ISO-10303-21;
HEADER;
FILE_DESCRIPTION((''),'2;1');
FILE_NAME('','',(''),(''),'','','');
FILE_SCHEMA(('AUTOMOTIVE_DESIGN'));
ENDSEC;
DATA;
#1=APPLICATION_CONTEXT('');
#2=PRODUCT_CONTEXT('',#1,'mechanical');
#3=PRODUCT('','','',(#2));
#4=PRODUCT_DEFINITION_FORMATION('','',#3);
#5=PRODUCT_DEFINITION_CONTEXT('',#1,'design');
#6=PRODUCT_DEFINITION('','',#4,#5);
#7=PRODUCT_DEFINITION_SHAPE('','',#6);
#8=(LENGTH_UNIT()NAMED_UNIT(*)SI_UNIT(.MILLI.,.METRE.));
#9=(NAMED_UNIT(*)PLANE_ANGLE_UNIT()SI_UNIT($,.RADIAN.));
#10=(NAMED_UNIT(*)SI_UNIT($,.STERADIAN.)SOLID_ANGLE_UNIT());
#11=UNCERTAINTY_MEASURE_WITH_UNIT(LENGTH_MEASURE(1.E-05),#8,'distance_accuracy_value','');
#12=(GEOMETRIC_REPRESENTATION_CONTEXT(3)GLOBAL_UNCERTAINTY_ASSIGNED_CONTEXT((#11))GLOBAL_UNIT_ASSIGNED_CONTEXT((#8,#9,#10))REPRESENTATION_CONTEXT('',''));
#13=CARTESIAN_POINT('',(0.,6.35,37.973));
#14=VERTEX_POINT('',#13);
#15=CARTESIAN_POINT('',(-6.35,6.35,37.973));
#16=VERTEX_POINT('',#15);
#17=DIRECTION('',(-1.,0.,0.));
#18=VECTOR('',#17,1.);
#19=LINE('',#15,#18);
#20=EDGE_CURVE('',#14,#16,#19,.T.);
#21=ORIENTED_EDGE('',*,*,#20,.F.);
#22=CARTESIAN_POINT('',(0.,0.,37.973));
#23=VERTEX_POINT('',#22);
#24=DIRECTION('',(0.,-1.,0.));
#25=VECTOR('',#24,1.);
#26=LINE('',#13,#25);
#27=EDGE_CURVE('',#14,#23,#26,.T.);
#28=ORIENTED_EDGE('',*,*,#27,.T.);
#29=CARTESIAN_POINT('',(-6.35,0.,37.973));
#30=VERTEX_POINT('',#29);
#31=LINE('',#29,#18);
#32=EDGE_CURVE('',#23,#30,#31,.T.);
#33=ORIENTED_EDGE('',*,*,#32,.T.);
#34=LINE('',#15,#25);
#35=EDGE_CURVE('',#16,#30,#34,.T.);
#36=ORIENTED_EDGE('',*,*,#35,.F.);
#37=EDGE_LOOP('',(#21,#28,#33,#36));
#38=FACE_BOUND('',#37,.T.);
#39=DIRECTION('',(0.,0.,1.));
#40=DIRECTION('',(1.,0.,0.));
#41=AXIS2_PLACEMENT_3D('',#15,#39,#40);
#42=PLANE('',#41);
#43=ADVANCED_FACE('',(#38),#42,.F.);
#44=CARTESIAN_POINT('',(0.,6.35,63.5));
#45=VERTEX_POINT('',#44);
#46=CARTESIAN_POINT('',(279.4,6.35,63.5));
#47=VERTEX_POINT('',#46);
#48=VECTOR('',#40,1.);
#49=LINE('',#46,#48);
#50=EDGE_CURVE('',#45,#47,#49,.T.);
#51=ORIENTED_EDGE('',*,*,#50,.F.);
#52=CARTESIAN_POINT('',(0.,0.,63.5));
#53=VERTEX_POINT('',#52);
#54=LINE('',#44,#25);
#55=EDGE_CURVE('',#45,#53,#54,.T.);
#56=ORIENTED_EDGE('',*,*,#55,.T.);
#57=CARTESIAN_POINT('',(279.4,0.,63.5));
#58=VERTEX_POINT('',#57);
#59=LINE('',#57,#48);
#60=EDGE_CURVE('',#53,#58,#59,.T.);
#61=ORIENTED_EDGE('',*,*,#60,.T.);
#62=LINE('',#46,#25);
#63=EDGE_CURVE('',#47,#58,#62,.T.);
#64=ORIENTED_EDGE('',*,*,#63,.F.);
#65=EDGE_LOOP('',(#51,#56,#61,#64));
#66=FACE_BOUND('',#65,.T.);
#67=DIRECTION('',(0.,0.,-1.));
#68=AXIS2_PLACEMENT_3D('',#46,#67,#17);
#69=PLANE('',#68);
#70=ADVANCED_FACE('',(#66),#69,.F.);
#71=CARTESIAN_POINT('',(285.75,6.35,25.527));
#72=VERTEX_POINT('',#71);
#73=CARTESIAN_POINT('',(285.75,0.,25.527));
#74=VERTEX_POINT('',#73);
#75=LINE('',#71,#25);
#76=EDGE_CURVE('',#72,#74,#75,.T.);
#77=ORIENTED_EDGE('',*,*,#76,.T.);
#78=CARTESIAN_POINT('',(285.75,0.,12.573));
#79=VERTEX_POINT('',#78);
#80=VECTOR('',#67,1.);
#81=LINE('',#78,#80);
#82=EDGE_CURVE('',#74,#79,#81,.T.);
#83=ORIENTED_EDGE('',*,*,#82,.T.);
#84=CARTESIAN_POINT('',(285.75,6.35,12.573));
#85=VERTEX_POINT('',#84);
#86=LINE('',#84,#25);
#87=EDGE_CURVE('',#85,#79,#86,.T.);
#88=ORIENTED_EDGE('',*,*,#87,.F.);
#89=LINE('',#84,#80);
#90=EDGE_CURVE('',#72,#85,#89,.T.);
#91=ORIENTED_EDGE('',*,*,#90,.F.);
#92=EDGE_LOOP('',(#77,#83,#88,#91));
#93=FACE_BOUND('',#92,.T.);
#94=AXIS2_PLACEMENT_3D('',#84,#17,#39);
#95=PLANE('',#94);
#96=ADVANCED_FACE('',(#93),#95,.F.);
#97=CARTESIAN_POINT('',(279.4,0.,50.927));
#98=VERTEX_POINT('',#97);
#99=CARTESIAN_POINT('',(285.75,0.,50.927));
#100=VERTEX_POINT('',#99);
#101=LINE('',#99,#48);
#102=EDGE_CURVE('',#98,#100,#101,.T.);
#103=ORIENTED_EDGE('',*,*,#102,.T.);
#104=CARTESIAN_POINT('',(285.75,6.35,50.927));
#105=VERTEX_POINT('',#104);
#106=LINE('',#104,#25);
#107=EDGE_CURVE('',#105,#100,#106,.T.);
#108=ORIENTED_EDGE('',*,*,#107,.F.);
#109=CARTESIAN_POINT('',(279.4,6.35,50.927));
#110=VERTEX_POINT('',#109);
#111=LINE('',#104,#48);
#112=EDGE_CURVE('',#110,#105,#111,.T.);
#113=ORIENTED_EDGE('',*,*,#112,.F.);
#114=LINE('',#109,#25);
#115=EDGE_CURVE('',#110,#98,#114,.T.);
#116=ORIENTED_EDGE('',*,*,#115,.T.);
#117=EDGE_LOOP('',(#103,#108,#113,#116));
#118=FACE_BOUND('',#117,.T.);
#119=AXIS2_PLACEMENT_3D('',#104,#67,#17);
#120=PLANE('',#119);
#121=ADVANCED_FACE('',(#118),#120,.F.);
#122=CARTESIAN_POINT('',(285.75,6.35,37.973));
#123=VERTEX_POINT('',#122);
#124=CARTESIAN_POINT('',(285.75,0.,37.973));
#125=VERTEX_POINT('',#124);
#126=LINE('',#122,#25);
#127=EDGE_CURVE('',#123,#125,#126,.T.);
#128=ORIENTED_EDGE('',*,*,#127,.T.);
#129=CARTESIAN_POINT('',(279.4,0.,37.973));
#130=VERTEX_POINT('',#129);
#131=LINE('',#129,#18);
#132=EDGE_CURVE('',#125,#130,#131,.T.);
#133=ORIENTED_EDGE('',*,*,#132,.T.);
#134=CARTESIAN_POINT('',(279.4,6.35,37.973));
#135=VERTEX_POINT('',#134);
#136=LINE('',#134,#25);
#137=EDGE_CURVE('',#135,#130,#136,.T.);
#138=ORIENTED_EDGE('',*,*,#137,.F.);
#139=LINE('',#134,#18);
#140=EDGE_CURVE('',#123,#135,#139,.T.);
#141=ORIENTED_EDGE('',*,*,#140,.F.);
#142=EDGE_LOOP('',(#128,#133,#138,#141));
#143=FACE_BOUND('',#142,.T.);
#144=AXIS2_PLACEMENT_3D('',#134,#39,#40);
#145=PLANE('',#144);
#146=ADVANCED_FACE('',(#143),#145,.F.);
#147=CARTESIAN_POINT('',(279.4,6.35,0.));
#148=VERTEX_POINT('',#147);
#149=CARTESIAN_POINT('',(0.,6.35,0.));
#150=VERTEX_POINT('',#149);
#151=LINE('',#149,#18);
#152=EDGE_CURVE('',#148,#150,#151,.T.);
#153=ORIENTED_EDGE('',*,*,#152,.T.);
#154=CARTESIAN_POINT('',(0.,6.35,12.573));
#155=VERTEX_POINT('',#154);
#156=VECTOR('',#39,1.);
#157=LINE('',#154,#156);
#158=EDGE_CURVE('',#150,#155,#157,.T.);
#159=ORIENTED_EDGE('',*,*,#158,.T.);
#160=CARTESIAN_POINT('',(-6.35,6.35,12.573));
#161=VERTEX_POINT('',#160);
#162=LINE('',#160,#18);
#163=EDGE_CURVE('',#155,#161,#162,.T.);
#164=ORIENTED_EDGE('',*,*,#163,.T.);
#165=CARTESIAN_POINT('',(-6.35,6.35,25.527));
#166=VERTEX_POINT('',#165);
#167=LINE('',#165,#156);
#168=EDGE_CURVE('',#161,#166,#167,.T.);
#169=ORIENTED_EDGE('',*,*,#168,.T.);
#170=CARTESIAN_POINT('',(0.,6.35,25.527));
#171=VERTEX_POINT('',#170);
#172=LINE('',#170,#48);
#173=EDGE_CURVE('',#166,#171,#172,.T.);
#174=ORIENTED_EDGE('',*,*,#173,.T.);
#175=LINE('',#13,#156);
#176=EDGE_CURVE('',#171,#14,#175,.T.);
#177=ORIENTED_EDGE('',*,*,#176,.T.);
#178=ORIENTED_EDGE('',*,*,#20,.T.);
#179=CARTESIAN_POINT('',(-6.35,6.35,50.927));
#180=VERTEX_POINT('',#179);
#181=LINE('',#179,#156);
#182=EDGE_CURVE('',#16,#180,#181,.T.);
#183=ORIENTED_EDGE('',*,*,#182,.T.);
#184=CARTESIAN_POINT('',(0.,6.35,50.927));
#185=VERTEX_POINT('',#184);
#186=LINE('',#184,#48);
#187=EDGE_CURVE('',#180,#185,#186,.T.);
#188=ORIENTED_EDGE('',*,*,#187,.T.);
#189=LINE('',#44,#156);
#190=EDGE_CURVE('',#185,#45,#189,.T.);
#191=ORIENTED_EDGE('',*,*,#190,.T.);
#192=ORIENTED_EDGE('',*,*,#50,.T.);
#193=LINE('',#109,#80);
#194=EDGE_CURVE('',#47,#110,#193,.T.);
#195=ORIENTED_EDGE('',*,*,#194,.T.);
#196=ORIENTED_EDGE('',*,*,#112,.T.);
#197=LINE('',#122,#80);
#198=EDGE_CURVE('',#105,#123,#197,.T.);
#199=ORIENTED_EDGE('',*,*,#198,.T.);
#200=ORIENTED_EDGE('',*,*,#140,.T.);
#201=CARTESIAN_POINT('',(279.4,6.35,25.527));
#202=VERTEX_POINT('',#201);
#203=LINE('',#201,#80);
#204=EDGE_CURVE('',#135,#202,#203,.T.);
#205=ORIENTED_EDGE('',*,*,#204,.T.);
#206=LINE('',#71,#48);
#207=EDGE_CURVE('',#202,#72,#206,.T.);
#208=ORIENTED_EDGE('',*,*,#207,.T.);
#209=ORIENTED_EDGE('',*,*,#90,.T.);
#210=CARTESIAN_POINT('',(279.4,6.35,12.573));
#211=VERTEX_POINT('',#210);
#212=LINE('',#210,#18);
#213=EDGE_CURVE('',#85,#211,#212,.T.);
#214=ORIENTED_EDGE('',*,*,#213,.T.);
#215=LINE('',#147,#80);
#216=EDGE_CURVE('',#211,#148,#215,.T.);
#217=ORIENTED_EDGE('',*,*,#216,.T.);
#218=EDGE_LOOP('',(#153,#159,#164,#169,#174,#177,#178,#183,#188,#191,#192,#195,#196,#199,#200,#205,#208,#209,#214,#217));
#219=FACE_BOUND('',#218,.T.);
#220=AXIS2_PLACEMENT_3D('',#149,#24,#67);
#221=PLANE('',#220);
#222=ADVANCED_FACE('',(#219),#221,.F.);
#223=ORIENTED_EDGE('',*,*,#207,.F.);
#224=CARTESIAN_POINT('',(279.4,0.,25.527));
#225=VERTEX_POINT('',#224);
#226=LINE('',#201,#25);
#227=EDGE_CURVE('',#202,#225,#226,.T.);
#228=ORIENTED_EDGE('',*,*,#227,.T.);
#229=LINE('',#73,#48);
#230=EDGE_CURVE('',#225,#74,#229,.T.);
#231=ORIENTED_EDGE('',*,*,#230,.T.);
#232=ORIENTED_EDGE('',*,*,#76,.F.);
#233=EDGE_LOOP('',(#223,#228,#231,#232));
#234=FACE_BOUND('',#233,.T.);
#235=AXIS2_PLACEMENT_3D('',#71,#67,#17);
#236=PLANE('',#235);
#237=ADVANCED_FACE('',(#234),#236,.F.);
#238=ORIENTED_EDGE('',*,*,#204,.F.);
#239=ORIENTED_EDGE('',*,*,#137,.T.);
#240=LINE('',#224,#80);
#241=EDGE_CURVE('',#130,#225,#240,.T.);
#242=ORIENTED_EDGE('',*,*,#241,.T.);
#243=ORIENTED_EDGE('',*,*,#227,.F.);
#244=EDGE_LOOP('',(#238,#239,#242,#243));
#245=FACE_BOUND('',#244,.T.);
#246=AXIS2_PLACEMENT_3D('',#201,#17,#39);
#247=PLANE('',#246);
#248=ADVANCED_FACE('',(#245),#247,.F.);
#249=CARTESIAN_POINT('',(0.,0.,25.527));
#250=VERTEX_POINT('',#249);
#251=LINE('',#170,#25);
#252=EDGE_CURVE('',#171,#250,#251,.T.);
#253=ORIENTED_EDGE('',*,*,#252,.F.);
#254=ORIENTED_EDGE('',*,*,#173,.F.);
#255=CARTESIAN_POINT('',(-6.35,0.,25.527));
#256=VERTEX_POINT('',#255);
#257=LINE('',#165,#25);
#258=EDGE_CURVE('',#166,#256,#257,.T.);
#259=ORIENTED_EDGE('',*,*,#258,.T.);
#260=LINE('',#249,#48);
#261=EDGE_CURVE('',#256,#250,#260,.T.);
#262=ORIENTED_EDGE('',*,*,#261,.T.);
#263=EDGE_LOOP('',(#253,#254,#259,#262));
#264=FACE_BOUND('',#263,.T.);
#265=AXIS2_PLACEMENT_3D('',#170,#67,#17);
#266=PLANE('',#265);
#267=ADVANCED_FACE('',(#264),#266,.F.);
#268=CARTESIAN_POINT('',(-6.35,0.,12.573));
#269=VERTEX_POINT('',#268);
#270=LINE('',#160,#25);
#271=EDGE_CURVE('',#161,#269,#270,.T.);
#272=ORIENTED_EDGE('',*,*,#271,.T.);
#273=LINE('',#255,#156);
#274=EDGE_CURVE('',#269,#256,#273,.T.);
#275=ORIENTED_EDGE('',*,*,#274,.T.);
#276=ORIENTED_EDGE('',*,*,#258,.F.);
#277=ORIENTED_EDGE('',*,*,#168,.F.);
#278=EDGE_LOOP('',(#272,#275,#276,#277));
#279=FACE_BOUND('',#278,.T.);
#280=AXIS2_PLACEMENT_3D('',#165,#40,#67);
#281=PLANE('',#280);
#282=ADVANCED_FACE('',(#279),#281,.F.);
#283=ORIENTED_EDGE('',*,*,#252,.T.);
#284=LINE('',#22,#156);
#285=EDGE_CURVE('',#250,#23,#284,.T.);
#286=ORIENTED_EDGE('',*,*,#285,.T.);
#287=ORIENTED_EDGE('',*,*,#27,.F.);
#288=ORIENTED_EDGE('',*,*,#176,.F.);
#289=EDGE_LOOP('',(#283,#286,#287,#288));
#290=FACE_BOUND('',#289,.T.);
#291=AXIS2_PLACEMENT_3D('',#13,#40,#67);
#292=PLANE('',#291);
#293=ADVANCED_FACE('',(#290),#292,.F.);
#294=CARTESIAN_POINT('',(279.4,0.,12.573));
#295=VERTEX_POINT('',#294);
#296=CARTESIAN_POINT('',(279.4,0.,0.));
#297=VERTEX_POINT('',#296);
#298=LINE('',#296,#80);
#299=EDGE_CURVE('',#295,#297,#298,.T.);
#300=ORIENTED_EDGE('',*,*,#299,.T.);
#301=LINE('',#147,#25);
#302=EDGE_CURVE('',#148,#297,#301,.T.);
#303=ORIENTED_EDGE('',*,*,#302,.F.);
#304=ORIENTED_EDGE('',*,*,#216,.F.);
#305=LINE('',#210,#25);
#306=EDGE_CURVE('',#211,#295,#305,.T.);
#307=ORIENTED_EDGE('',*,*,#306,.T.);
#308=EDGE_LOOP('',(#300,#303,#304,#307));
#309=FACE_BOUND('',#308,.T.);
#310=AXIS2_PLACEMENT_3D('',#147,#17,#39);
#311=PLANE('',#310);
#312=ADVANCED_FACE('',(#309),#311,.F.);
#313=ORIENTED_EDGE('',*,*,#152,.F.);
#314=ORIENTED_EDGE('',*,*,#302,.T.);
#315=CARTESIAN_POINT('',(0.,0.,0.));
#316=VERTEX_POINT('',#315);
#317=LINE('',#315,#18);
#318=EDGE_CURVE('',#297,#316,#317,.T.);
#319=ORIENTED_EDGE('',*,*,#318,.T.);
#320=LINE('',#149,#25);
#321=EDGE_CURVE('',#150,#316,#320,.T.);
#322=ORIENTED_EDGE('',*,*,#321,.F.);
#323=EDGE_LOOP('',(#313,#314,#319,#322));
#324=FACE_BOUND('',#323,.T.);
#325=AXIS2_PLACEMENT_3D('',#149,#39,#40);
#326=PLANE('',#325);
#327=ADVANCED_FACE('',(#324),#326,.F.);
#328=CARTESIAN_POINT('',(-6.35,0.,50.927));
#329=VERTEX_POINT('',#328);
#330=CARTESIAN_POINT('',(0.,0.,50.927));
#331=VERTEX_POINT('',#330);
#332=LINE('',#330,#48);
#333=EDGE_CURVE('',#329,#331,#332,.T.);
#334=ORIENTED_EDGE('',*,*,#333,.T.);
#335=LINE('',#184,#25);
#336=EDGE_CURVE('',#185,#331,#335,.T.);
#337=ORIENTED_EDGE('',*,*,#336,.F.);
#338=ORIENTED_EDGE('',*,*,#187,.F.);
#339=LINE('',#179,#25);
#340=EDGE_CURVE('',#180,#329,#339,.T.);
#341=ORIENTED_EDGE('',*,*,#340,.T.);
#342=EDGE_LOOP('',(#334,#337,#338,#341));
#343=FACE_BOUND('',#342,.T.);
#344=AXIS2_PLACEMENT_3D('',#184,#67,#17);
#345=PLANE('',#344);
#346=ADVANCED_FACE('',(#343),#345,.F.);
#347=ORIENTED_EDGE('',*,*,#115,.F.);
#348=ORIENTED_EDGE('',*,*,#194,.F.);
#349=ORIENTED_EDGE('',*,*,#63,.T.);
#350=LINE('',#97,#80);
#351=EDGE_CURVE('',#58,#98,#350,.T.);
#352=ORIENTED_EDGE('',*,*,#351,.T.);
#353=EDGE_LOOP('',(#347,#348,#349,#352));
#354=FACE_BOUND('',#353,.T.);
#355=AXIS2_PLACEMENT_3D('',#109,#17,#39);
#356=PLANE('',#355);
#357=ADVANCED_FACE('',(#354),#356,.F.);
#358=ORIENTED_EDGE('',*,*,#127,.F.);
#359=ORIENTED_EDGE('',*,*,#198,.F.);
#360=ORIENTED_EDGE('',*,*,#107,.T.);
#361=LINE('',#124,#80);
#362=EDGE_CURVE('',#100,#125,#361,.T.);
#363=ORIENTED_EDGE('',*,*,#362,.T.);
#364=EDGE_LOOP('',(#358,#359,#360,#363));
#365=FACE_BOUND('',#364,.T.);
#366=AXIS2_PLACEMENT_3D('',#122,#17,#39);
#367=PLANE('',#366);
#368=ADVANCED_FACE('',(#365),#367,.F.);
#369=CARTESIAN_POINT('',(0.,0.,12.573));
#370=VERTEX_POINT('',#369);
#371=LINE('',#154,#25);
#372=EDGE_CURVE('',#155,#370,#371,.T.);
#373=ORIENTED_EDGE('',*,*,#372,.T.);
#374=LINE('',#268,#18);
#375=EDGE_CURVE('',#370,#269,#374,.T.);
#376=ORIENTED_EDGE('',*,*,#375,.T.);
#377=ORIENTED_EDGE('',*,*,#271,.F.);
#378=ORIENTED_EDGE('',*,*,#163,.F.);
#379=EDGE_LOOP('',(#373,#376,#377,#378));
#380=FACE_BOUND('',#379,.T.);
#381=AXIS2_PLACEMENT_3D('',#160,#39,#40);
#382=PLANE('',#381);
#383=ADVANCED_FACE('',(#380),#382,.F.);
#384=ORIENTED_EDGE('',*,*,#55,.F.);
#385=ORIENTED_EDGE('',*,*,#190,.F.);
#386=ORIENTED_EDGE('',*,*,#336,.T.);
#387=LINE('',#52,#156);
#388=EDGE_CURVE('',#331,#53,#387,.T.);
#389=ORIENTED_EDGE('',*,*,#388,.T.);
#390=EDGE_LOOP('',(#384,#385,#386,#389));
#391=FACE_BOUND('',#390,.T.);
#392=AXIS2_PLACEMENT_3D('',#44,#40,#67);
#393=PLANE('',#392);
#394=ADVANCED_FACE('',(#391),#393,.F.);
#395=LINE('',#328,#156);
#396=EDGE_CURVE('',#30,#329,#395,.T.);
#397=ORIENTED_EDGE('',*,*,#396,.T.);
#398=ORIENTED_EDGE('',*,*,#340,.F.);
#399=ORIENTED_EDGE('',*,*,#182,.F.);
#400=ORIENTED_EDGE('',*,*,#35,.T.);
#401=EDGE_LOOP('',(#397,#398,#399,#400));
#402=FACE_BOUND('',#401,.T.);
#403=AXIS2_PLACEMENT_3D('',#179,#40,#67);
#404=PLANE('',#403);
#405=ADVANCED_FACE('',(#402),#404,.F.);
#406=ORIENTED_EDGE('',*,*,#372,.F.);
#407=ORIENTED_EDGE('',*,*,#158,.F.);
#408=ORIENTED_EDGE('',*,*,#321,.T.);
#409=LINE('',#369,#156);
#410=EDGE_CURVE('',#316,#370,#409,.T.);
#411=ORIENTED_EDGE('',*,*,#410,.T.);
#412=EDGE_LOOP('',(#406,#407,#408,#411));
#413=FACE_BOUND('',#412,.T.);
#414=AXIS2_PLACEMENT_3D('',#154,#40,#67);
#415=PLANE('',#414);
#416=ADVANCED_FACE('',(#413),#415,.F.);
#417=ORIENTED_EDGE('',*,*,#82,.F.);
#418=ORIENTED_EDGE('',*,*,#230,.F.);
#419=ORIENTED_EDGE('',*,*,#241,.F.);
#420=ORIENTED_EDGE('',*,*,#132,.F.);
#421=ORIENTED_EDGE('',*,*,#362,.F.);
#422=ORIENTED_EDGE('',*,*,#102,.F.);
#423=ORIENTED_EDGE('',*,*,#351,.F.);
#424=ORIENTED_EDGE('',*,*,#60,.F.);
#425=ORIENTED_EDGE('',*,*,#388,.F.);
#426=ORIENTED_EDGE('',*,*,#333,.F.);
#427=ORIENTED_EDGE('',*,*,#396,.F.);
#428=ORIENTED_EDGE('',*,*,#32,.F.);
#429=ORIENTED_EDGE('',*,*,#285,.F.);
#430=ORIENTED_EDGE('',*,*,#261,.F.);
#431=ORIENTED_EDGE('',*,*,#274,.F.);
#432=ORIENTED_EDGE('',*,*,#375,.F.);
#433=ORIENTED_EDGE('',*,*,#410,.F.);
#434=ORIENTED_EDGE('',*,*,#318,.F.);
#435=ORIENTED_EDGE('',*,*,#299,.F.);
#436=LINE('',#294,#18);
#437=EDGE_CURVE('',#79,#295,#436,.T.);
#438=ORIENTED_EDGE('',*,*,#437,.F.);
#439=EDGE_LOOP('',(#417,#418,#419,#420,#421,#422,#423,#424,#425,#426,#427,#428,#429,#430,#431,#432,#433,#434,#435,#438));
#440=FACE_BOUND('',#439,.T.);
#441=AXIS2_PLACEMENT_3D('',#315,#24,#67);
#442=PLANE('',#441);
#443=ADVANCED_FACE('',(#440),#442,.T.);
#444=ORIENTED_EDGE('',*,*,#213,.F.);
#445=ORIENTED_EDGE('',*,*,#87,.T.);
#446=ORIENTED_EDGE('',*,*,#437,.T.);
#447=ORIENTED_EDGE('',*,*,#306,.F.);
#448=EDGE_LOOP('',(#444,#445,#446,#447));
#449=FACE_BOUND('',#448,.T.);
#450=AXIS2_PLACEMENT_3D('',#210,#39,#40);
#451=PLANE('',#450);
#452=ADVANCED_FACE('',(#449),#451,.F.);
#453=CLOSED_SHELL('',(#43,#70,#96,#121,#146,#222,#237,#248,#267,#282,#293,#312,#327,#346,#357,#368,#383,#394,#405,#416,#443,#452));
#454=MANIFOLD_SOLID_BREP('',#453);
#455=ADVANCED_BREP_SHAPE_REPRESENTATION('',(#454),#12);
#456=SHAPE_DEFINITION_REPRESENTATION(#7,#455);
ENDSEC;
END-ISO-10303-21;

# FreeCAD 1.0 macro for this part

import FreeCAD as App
import Part
import Sketcher
from FreeCAD import Vector
Q = App.Units.Quantity

doc = App.newDocument("Part")
params = doc.addObject("Spreadsheet::Sheet", "Params")
for row, (alias, value) in enumerate([
    ("sketch1_width", "11 in"),
    ("sketch1_width2", "0.25 in"),
    ("sketch1_height", "0.51 in"),
    ("pad1_length", "0.25 in"),
], start=1):
    params.set(f"A{row}", alias)
    params.set(f"B{row}", "=" + value)
    params.setAlias(f"B{row}", alias)

body = doc.addObject("PartDesign::Body", "Body")

sketch1 = body.newObject("Sketcher::SketchObject", "Sketch")
sketch1.AttachmentSupport = (doc.getObject("XZ_Plane"), [""])
sketch1.MapMode = "FlatFace"
sketch1.addGeometry([
    Part.LineSegment(Vector(279.4, 0, 0), Vector(0, 0, 0)),
    Part.LineSegment(Vector(0, 0, 0), Vector(0, 12.573, 0)),
    Part.LineSegment(Vector(0, 12.573, 0), Vector(-6.35, 12.573, 0)),
    Part.LineSegment(Vector(-6.35, 12.573, 0), Vector(-6.35, 25.527, 0)),
    Part.LineSegment(Vector(-6.35, 25.527, 0), Vector(0, 25.527, 0)),
    Part.LineSegment(Vector(0, 25.527, 0), Vector(0, 37.973, 0)),
    Part.LineSegment(Vector(0, 37.973, 0), Vector(-6.35, 37.973, 0)),
    Part.LineSegment(Vector(-6.35, 37.973, 0), Vector(-6.35, 50.927, 0)),
    Part.LineSegment(Vector(-6.35, 50.927, 0), Vector(0, 50.927, 0)),
    Part.LineSegment(Vector(0, 50.927, 0), Vector(0, 63.5, 0)),
    Part.LineSegment(Vector(0, 63.5, 0), Vector(279.4, 63.5, 0)),
    Part.LineSegment(Vector(279.4, 63.5, 0), Vector(279.4, 50.927, 0)),
    Part.LineSegment(Vector(279.4, 50.927, 0), Vector(285.75, 50.927, 0)),
    Part.LineSegment(Vector(285.75, 50.927, 0), Vector(285.75, 37.973, 0)),
    Part.LineSegment(Vector(285.75, 37.973, 0), Vector(279.4, 37.973, 0)),
    Part.LineSegment(Vector(279.4, 37.973, 0), Vector(279.4, 25.527, 0)),
    Part.LineSegment(Vector(279.4, 25.527, 0), Vector(285.75, 25.527, 0)),
    Part.LineSegment(Vector(285.75, 25.527, 0), Vector(285.75, 12.573, 0)),
    Part.LineSegment(Vector(285.75, 12.573, 0), Vector(279.4, 12.573, 0)),
    Part.LineSegment(Vector(279.4, 12.573, 0), Vector(279.4, 0, 0)),
], False)
sketch1.addConstraint([
    Sketcher.Constraint("Coincident", 0, 2, 1, 1),
    Sketcher.Constraint("Coincident", 1, 2, 2, 1),
    Sketcher.Constraint("Coincident", 2, 2, 3, 1),
    Sketcher.Constraint("Coincident", 3, 2, 4, 1),
    Sketcher.Constraint("Coincident", 4, 2, 5, 1),
    Sketcher.Constraint("Coincident", 5, 2, 6, 1),
    Sketcher.Constraint("Coincident", 6, 2, 7, 1),
    Sketcher.Constraint("Coincident", 7, 2, 8, 1),
    Sketcher.Constraint("Coincident", 8, 2, 9, 1),
    Sketcher.Constraint("Coincident", 9, 2, 10, 1),
    Sketcher.Constraint("Coincident", 10, 2, 11, 1),
    Sketcher.Constraint("Coincident", 11, 2, 12, 1),
    Sketcher.Constraint("Coincident", 12, 2, 13, 1),
    Sketcher.Constraint("Coincident", 13, 2, 14, 1),
    Sketcher.Constraint("Coincident", 14, 2, 15, 1),
    Sketcher.Constraint("Coincident", 15, 2, 16, 1),
    Sketcher.Constraint("Coincident", 16, 2, 17, 1),
    Sketcher.Constraint("Coincident", 17, 2, 18, 1),
    Sketcher.Constraint("Coincident", 18, 2, 19, 1),
    Sketcher.Constraint("Coincident", 19, 2, 0, 1),
    Sketcher.Constraint("Horizontal", 0),
    Sketcher.Constraint("Vertical", 1),
    Sketcher.Constraint("Horizontal", 2),
    Sketcher.Constraint("Vertical", 3),
    Sketcher.Constraint("Horizontal", 4),
    Sketcher.Constraint("Vertical", 5),
    Sketcher.Constraint("Horizontal", 6),
    Sketcher.Constraint("Vertical", 7),
    Sketcher.Constraint("Horizontal", 8),
    Sketcher.Constraint("Vertical", 9),
    Sketcher.Constraint("Horizontal", 10),
    Sketcher.Constraint("Vertical", 11),
    Sketcher.Constraint("Horizontal", 12),
    Sketcher.Constraint("Vertical", 13),
    Sketcher.Constraint("Horizontal", 14),
    Sketcher.Constraint("Vertical", 15),
    Sketcher.Constraint("Horizontal", 16),
    Sketcher.Constraint("Vertical", 17),
    Sketcher.Constraint("Horizontal", 18),
    Sketcher.Constraint("Vertical", 19),
    Sketcher.Constraint("Coincident", 0, 2, -1, 1),
    Sketcher.Constraint("PointOnObject", 4, 2, -2),
    Sketcher.Constraint("PointOnObject", 8, 2, -2),
    Sketcher.Constraint("Horizontal", 8, 2, 11, 2),
    Sketcher.Constraint("Horizontal", 6, 2, 13, 2),
    Sketcher.Constraint("Horizontal", 4, 2, 15, 2),
    Sketcher.Constraint("Horizontal", 2, 2, 17, 2),
    Sketcher.Constraint("Vertical", 3, 2, 6, 2),
    Sketcher.Constraint("Vertical", 11, 2, 14, 2),
    Sketcher.Constraint("Vertical", 13, 2, 16, 2),
    Sketcher.Constraint("Vertical", 15, 2, 18, 2),
    Sketcher.Constraint("Equal", 8, 12),
    Sketcher.Constraint("Equal", 3, 7),
    Sketcher.Constraint("Equal", 1, 9),
    Sketcher.Constraint("DistanceX", 0, 2, 0, 1, Q("11 in")),
    Sketcher.Constraint("DistanceY", 1, 2, 5, 2, Q("1 in")),
    Sketcher.Constraint("DistanceX", 2, 2, 2, 1, Q("0.25 in")),
    Sketcher.Constraint("DistanceY", 3, 1, 3, 2, Q("0.51 in")),
    Sketcher.Constraint("DistanceY", -1, 1, 9, 2, Q("2.5 in")),
])
sketch1.setExpression("Constraints[54]", "Params.sketch1_width")
sketch1.setExpression("Constraints[56]", "Params.sketch1_width2")
sketch1.setExpression("Constraints[57]", "Params.sketch1_height")
pad1 = body.newObject("PartDesign::Pad", "Pad")
pad1.Profile = sketch1
pad1.setExpression("Length", "Params.pad1_length")
pad1.Reversed = True

doc.recompute()
